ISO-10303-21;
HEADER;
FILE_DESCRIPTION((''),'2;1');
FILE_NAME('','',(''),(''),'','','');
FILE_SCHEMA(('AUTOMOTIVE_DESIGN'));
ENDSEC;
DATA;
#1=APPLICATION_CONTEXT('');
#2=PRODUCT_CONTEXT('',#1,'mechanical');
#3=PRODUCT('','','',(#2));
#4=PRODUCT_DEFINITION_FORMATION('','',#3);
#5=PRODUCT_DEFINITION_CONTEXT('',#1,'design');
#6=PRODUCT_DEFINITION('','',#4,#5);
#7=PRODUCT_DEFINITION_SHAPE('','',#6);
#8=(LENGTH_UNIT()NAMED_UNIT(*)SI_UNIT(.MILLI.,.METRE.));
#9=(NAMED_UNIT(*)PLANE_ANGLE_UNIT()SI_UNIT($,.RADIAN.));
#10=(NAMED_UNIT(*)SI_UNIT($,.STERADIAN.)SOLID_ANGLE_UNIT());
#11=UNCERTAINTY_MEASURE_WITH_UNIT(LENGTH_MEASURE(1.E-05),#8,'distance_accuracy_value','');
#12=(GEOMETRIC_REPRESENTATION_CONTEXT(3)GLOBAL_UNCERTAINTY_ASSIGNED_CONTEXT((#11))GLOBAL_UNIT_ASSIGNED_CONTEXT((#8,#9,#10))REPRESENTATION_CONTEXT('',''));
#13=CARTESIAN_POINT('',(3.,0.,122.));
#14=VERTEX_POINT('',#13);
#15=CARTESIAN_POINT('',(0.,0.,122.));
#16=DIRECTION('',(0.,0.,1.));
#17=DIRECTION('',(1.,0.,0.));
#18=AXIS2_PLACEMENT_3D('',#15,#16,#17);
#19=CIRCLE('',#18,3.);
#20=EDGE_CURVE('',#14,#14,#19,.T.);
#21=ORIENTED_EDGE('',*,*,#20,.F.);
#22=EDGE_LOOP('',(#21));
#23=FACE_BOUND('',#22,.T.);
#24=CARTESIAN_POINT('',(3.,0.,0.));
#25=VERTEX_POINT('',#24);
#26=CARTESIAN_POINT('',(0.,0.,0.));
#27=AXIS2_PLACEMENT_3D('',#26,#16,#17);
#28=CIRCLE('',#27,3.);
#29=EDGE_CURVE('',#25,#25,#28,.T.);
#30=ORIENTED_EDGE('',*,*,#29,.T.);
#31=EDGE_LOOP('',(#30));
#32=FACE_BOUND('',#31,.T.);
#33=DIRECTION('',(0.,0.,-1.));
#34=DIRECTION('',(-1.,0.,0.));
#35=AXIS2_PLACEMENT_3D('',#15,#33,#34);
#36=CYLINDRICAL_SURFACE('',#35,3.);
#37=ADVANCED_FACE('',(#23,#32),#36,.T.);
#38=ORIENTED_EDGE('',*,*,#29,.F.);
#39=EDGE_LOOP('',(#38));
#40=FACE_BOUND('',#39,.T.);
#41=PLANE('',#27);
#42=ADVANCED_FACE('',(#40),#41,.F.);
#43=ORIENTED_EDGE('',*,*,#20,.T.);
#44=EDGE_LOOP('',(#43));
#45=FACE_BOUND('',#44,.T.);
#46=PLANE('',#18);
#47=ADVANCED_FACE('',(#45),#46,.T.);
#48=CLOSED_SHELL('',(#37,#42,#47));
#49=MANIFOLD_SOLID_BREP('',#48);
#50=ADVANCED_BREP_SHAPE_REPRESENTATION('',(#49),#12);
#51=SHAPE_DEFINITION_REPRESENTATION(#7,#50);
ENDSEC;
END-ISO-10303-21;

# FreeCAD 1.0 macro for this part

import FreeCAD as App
import Part
import Sketcher
from FreeCAD import Vector
Q = App.Units.Quantity

doc = App.newDocument("Part")
body = doc.addObject("PartDesign::Body", "Body")

# Sketch on XY plane
sketch1 = body.newObject("Sketcher::SketchObject", "Sketch")
sketch1.AttachmentSupport = (doc.getObject("XY_Plane"), [""])
sketch1.MapMode = "FlatFace"
sketch1.addGeometry(Part.Circle(Vector(0, 0, 0), Vector(0, 0, 1), 3), False)
sketch1.addConstraint([
    Sketcher.Constraint("Coincident", 0, 3, -1, 1),
    Sketcher.Constraint("Diameter", 0, Q("6 mm")),
])
pad1 = body.newObject("PartDesign::Pad", "Pad")
pad1.Profile = sketch1
pad1.Length = 122

doc.recompute()
